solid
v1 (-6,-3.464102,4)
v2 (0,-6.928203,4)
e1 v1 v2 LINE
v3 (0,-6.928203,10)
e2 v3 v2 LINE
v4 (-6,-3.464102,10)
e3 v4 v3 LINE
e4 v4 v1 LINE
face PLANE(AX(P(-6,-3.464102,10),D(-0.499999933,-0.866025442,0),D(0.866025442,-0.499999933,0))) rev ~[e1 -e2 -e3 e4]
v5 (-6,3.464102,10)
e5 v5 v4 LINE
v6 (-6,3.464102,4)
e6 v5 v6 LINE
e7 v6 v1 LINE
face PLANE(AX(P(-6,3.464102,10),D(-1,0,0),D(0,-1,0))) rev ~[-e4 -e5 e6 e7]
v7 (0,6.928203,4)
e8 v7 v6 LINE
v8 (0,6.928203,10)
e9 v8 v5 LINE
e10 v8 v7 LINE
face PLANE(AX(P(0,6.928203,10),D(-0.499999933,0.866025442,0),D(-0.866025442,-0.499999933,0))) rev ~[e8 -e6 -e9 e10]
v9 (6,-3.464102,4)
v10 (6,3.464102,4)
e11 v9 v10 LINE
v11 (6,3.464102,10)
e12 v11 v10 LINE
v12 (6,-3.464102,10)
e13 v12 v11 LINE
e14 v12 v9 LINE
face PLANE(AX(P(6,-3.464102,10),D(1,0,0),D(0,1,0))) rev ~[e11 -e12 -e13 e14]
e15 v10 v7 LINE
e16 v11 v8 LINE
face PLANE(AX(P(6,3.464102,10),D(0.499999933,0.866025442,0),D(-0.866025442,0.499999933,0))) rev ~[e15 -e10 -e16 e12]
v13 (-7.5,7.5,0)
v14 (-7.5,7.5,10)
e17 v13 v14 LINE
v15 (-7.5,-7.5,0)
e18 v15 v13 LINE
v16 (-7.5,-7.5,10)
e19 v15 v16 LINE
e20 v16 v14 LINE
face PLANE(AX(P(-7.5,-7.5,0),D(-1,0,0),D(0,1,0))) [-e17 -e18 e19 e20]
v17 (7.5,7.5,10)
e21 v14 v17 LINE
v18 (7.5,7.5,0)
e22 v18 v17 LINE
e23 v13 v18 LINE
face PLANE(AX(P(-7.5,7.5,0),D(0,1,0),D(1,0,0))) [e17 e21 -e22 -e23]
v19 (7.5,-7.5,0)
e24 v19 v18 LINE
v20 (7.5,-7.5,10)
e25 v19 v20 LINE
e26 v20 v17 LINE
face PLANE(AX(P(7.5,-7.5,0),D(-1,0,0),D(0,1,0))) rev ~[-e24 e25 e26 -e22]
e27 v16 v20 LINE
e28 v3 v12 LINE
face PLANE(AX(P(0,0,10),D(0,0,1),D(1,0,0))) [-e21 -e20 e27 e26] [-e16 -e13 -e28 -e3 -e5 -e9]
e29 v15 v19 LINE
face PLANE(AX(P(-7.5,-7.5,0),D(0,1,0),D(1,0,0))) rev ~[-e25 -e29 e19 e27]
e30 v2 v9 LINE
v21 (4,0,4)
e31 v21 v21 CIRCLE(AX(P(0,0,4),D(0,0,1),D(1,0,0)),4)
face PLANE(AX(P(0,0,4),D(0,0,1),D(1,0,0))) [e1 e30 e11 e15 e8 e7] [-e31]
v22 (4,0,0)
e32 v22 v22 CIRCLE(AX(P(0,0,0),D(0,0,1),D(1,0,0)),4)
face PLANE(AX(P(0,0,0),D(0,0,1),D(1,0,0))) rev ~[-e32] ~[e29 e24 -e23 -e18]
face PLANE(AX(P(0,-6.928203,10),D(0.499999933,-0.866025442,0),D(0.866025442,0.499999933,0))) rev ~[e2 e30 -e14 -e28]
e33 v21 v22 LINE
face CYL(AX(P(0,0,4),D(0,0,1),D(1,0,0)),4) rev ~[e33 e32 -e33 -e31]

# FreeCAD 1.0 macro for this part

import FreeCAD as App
import Part
import Sketcher
Q = App.Units.Quantity


def add_polygon(sketch, points):
    """Adds a closed chain of lines whose ends are joined by coincident constraints."""
    first, n = sketch.GeometryCount, len(points)
    for a, b in zip(points, points[1:] + points[:1]):
        sketch.addGeometry(Part.LineSegment(App.Vector(*a, 0), App.Vector(*b, 0)), False)
    for i in range(n):
        sketch.addConstraint(Sketcher.Constraint("Coincident", first + i, 2, first + (i + 1) % n, 1))

doc = App.newDocument("Part")
body = doc.addObject("PartDesign::Body", "Body")

# Sketch on XY plane
sketch1 = doc.addObject("Sketcher::SketchObject", "Sketch")
body.addObject(sketch1)
sketch1.AttachmentSupport = (doc.XY_Plane, [""])
sketch1.MapMode = "FlatFace"
add_polygon(sketch1, [(-8, 8), (-8, -8), (8, -8), (8, 8)])  # lines 0-3
sketch1.addConstraint(Sketcher.Constraint("Vertical", 0))
sketch1.addConstraint(Sketcher.Constraint("Horizontal", 1))
sketch1.addConstraint(Sketcher.Constraint("Vertical", 2))
sketch1.addConstraint(Sketcher.Constraint("Horizontal", 3))
sketch1.addConstraint(Sketcher.Constraint("Symmetric", 0, 2, 2, 2, -1, 1))
sketch1.addConstraint(Sketcher.Constraint("Equal", 3, 0))
sketch1.addConstraint(Sketcher.Constraint("DistanceX", 1, 1, 1, 2, 15.0))
pad1 = doc.addObject("PartDesign::Pad", "Pad")
body.addObject(pad1)
pad1.Profile = sketch1
pad1.Length = 10

# Sketch on XY plane
sketch2 = doc.addObject("Sketcher::SketchObject", "Sketch001")
body.addObject(sketch2)
sketch2.AttachmentSupport = (doc.XY_Plane, [""])
sketch2.MapMode = "FlatFace"
sketch2.AttachmentOffset = App.Placement(App.Vector(0, 0, 10), App.Rotation())
add_polygon(sketch2, [(0, -7), (6, -3), (6, 3), (0, 7), (-6, 3), (-6, -3)])  # lines 0-5
sketch2.addConstraint(Sketcher.Constraint("Vertical", 1))
sketch2.addConstraint(Sketcher.Constraint("Vertical", 4))
sketch2.addConstraint(Sketcher.Constraint("Symmetric", 0, 2, 3, 2, -1, 1))
sketch2.addConstraint(Sketcher.Constraint("Symmetric", 2, 2, 5, 2, -1, 1))
sketch2.addConstraint(Sketcher.Constraint("PointOnObject", 2, 2, -2))
sketch2.addConstraint(Sketcher.Constraint("Parallel", 2, 5))
sketch2.addConstraint(Sketcher.Constraint("Horizontal", 1, 2, 3, 2))
sketch2.addConstraint(Sketcher.Constraint("Angle", 0, Q("29.999996 deg")))
sketch2.addConstraint(Sketcher.Constraint("DistanceX", -1, 1, 0, 2, 6.0))
sketch2.addConstraint(Sketcher.Constraint("DistanceY", 0, 2, -1, 1, 3.464102))
pocket1 = doc.addObject("PartDesign::Pocket", "Pocket")
body.addObject(pocket1)
pocket1.Profile = sketch2
pocket1.Length = 6

# Sketch on XY plane
sketch3 = doc.addObject("Sketcher::SketchObject", "Sketch002")
body.addObject(sketch3)
sketch3.AttachmentSupport = (doc.XY_Plane, [""])
sketch3.MapMode = "FlatFace"
sketch3.AttachmentOffset = App.Placement(App.Vector(0, 0, 4), App.Rotation())
sketch3.addGeometry(Part.Circle(App.Vector(0, 0, 0), App.Vector(0, 0, 1), 4), False)
sketch3.addConstraint(Sketcher.Constraint("Coincident", 0, 3, -1, 1))
sketch3.addConstraint(Sketcher.Constraint("Diameter", 0, 8.0))
pocket2 = doc.addObject("PartDesign::Pocket", "Pocket001")
body.addObject(pocket2)
pocket2.Profile = sketch3
pocket2.Length = 25

doc.recompute()
